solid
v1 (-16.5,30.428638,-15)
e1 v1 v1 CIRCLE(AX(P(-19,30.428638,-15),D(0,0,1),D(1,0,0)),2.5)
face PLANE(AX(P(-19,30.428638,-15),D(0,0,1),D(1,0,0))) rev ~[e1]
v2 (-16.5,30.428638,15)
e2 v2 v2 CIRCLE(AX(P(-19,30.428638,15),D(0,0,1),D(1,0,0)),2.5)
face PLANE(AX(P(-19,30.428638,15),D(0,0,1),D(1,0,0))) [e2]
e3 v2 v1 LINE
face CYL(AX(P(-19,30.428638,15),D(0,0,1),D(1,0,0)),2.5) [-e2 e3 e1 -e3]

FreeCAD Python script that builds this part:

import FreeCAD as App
import Part
import Sketcher
Q = App.Units.Quantity

doc = App.newDocument("Part")
body = doc.addObject("PartDesign::Body", "Body")

sketch1 = body.newObject("Sketcher::SketchObject", "Sketch")
sketch1.AttachmentSupport = (doc.getObject("XY_Plane"), [""])
sketch1.MapMode = "FlatFace"
sketch1.AttachmentOffset = App.Placement(App.Vector(0, 0, 15), App.Rotation())
sketch1.addGeometry(Part.Circle(App.Vector(-19, 30.4, 0), App.Vector(0, 0, 1), 2.5), False)
sketch1.addConstraint([
    Sketcher.Constraint("Diameter", 0, Q("5 mm")),
    Sketcher.Constraint("DistanceX", 0, 3, -1, 1, Q("19 mm")),
    Sketcher.Constraint("DistanceY", -1, 1, 0, 3, Q("30.428638 mm")),
])
pad1 = body.newObject("PartDesign::Pad", "Pad")
pad1.Profile = sketch1
pad1.Length = 30
pad1.Reversed = True

doc.recompute()
